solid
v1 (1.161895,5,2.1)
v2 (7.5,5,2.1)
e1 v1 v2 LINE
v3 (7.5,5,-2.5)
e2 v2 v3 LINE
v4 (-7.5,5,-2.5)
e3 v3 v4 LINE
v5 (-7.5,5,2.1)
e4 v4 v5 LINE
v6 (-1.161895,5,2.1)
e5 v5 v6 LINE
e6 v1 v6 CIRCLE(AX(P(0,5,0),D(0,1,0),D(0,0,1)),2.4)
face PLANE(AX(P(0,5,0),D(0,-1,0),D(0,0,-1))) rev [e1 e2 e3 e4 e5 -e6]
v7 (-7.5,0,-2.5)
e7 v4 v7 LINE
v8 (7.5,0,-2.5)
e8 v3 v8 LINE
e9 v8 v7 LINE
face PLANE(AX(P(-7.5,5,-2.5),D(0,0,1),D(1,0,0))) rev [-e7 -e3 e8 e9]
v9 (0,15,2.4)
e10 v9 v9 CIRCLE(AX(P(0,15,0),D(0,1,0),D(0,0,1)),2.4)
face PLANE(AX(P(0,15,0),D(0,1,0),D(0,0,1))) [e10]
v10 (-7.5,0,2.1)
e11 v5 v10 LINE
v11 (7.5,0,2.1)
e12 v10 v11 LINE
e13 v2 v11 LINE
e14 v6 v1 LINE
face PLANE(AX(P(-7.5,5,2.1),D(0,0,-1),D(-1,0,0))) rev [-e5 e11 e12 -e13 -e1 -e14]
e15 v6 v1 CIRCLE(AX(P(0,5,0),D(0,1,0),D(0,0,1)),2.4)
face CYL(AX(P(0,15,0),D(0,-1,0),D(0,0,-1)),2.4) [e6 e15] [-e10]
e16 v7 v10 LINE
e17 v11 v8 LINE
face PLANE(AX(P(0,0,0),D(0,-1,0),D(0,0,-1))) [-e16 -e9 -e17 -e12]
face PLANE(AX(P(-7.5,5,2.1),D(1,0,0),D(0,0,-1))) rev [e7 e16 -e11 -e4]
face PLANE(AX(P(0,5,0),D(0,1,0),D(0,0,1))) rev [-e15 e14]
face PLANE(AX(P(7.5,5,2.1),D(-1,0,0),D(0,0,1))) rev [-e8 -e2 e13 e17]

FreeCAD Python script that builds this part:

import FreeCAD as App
import Part
import Sketcher


def add_polygon(sketch, points):
    """Adds a closed chain of lines whose ends are joined by coincident constraints."""
    first, n = sketch.GeometryCount, len(points)
    for a, b in zip(points, points[1:] + points[:1]):
        sketch.addGeometry(Part.LineSegment(App.Vector(*a, 0), App.Vector(*b, 0)), False)
    for i in range(n):
        sketch.addConstraint(Sketcher.Constraint("Coincident", first + i, 2, first + (i + 1) % n, 1))

doc = App.newDocument("Part")
body = doc.addObject("PartDesign::Body", "Body")

# Sketch on XZ plane
sketch1 = body.newObject("Sketcher::SketchObject", "Sketch")
sketch1.AttachmentSupport = (doc.getObject("XZ_Plane"), [""])
sketch1.MapMode = "FlatFace"
add_polygon(sketch1, [(-7.5, -2.5), (-7.5, 2.1), (7.5, 2.1), (7.5, -2.5)])  # lines 0-3
sketch1.addConstraint(Sketcher.Constraint("Vertical", 0))
sketch1.addConstraint(Sketcher.Constraint("Horizontal", 1))
sketch1.addConstraint(Sketcher.Constraint("Vertical", 2))
sketch1.addConstraint(Sketcher.Constraint("Horizontal", 3))
sketch1.addConstraint(Sketcher.Constraint("DistanceX", 1, 1, 1, 2, 15.0))
sketch1.addConstraint(Sketcher.Constraint("DistanceY", 0, 1, 0, 2, 4.6))
sketch1.addConstraint(Sketcher.Constraint("DistanceX", 0, 2, -1, 1, 7.5))
sketch1.addConstraint(Sketcher.Constraint("DistanceY", -1, 1, 0, 2, 2.1))
pad1 = body.newObject("PartDesign::Pad", "Pad")
pad1.Profile = sketch1
pad1.Length = 5
pad1.Reversed = True

# Sketch on XZ plane
sketch2 = body.newObject("Sketcher::SketchObject", "Sketch001")
sketch2.AttachmentSupport = (doc.getObject("XZ_Plane"), [""])
sketch2.MapMode = "FlatFace"
sketch2.AttachmentOffset = App.Placement(App.Vector(0, 0, -5), App.Rotation())
sketch2.addGeometry(Part.Circle(App.Vector(0, 0, 0), App.Vector(0, 0, 1), 2.4), False)
sketch2.addConstraint(Sketcher.Constraint("Coincident", 0, 3, -1, 1))
sketch2.addConstraint(Sketcher.Constraint("Diameter", 0, 4.8))
pad2 = body.newObject("PartDesign::Pad", "Pad001")
pad2.Profile = sketch2
pad2.Length = 10
pad2.Reversed = True

doc.recompute()
